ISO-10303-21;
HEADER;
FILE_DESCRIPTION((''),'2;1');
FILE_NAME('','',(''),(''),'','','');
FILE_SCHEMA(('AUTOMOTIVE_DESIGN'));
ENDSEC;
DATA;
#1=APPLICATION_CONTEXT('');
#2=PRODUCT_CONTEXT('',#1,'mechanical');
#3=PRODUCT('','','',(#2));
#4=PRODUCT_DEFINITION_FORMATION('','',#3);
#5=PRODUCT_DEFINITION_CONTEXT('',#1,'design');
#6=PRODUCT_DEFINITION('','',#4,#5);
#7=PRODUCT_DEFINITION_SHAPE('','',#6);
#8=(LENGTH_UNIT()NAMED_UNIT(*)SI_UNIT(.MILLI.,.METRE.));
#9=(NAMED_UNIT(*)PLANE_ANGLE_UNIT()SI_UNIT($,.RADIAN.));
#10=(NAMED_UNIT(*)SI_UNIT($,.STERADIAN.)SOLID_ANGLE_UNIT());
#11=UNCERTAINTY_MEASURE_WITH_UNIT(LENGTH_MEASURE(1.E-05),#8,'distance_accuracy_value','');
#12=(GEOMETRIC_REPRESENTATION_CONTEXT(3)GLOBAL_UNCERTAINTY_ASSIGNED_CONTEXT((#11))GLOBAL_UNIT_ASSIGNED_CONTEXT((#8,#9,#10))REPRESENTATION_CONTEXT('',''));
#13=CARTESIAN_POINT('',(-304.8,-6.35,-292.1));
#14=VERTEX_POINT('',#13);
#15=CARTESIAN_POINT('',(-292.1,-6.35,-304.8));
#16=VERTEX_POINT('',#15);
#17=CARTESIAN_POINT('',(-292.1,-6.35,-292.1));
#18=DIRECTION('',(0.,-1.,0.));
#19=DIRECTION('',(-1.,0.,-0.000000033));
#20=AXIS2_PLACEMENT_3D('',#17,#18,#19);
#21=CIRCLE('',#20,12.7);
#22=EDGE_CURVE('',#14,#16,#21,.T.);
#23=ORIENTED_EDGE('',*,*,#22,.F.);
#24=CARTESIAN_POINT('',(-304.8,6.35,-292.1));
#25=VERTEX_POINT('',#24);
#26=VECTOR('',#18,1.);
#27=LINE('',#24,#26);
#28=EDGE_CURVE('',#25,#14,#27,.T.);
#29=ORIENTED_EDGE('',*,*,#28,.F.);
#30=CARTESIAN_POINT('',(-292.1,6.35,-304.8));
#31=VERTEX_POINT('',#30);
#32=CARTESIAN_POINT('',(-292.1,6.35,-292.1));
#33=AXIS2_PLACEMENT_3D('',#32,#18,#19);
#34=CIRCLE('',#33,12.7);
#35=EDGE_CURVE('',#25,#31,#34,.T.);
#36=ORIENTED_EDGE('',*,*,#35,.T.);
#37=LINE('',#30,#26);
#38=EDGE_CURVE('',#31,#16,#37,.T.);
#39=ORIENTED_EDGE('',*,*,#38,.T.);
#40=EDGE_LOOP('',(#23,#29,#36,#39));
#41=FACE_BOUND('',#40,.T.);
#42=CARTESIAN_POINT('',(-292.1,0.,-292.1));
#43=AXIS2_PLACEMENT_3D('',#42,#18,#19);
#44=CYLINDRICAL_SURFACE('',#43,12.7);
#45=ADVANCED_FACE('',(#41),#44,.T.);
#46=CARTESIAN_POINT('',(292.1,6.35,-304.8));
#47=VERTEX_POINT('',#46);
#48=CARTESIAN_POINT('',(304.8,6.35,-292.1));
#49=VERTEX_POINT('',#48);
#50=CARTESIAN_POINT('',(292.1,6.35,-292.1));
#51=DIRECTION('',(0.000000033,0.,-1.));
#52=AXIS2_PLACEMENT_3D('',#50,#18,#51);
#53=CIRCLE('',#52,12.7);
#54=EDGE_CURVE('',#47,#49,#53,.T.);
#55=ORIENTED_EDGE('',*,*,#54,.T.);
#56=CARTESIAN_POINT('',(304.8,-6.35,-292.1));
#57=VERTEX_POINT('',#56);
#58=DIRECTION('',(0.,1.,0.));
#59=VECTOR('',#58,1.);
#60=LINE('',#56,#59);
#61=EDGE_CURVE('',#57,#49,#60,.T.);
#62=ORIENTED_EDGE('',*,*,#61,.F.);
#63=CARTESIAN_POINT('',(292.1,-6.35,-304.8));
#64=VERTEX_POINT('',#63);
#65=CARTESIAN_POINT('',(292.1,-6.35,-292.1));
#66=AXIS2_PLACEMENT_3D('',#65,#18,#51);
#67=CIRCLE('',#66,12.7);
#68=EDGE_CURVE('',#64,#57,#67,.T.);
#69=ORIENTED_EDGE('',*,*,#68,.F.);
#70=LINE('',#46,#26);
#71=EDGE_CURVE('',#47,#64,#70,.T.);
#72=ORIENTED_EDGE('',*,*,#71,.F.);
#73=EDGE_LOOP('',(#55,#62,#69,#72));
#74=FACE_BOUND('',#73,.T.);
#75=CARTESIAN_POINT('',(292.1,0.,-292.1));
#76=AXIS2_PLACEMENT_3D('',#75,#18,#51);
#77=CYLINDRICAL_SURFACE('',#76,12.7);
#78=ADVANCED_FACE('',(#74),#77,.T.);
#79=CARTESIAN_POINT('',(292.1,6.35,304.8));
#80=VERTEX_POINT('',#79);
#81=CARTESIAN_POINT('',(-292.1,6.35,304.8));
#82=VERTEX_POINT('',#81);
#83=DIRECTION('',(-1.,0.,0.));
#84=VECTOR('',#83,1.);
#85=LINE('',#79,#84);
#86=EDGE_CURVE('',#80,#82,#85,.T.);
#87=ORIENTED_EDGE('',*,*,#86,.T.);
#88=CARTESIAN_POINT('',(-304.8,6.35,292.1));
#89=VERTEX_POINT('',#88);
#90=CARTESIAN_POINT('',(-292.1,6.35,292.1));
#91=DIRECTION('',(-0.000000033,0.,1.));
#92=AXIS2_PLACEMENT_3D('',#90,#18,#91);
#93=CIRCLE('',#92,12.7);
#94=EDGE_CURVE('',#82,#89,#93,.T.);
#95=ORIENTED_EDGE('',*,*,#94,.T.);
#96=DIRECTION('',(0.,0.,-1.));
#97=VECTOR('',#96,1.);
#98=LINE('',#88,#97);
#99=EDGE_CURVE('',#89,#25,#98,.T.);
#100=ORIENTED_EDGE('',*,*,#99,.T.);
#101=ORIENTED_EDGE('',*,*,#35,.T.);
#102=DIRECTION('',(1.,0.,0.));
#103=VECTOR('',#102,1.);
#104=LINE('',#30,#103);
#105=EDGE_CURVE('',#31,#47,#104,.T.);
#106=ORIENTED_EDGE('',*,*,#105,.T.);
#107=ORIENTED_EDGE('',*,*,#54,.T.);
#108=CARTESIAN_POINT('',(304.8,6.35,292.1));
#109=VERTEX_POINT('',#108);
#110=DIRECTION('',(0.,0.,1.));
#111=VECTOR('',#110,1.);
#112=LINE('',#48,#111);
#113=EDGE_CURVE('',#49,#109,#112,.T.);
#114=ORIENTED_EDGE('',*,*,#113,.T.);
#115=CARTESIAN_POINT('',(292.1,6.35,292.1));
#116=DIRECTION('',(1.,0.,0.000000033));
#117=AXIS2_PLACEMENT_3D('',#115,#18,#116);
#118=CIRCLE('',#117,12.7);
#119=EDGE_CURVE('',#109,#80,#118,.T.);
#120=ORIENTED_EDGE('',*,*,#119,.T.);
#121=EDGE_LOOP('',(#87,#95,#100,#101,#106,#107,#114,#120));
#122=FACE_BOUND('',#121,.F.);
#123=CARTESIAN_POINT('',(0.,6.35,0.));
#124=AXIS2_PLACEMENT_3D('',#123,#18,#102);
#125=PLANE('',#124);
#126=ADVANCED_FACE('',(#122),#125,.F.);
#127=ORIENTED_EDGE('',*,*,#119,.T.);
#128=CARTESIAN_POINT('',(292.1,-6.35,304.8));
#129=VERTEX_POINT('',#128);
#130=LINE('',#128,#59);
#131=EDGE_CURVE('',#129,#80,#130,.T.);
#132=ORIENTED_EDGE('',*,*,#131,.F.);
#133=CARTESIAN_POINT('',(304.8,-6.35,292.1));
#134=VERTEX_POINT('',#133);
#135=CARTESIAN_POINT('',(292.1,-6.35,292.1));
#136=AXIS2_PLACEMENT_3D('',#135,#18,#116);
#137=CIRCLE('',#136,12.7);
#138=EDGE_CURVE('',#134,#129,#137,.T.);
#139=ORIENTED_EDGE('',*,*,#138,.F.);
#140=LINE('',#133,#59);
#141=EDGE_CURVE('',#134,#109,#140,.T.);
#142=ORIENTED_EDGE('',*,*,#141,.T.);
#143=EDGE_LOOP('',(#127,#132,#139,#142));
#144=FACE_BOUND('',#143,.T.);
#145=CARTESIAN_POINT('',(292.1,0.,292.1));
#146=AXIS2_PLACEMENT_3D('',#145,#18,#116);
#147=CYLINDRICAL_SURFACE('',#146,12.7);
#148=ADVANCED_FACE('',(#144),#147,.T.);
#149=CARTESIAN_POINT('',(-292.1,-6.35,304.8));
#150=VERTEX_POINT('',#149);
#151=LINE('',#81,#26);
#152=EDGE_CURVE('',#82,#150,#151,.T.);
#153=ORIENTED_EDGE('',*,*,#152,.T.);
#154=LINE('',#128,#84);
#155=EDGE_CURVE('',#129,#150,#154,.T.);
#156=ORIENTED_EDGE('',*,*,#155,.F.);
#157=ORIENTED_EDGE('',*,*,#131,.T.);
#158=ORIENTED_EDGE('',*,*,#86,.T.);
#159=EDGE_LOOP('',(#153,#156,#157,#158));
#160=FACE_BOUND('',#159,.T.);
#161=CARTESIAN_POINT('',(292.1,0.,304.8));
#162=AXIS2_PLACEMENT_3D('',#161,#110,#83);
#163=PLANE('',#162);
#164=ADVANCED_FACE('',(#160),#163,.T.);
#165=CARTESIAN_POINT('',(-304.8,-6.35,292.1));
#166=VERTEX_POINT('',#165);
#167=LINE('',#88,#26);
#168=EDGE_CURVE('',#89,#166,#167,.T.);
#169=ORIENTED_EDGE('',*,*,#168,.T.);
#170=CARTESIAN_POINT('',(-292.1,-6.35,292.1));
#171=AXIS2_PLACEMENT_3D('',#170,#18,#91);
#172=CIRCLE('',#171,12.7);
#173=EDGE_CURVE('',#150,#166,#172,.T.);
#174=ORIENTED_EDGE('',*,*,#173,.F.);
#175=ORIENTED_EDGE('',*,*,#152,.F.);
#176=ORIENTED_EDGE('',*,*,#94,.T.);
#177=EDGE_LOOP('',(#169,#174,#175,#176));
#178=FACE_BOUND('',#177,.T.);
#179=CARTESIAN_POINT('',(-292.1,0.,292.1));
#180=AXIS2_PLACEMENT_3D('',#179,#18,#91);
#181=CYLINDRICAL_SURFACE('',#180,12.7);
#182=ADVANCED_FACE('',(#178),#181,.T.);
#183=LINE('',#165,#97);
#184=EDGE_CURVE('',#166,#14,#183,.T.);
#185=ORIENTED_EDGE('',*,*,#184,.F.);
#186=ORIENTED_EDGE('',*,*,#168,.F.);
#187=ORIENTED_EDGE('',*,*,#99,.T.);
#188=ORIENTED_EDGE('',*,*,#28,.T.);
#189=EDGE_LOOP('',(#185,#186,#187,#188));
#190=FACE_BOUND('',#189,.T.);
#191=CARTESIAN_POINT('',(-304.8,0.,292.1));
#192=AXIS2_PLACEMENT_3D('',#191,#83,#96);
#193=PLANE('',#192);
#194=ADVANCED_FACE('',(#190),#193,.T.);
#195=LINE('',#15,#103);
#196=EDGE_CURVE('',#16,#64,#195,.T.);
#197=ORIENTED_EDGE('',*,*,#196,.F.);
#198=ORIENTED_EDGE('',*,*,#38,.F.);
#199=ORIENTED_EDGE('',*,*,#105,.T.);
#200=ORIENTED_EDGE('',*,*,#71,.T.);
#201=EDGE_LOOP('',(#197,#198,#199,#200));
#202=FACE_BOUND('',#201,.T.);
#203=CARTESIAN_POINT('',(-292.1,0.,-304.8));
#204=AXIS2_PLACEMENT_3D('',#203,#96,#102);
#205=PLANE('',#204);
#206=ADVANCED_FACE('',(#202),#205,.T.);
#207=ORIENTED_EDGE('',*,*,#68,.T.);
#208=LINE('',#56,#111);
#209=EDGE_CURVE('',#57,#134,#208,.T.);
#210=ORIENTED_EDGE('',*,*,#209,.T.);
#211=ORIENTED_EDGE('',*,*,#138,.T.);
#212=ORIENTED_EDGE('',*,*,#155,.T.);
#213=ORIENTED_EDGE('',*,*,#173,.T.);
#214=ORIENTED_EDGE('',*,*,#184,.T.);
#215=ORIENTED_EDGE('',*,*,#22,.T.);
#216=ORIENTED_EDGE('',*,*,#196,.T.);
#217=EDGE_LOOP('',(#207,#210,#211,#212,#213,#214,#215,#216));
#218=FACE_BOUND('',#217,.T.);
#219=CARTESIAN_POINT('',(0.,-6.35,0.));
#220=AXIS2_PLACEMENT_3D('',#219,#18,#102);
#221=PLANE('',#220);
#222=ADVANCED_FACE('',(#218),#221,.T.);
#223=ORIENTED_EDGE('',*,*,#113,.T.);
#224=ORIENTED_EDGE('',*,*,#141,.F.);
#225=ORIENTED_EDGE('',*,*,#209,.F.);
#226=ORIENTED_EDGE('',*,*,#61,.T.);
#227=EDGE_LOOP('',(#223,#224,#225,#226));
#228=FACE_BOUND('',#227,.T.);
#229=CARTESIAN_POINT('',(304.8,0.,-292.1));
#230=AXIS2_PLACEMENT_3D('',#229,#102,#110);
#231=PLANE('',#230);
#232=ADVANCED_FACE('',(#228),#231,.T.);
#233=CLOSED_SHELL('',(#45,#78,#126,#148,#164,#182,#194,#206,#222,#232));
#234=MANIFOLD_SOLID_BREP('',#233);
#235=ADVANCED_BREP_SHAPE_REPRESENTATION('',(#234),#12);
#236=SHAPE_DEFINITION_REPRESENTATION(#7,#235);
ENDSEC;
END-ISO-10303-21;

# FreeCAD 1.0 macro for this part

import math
import FreeCAD as App
import Part
import Sketcher

V = App.Vector
Q = App.Units.Quantity

doc = App.newDocument("Part")
body = doc.addObject("PartDesign::Body", "Body")

# Sketch on XZ plane
sketch1 = body.newObject("Sketcher::SketchObject", "Sketch")
sketch1.AttachmentSupport = (doc.getObject("XZ_Plane"), [""])
sketch1.MapMode = "FlatFace"
sketch1.addGeometry([
    Part.LineSegment(V(292, 305, 0), V(-292, 305, 0)),  # 0
    Part.ArcOfCircle(Part.Circle(V(-292, 292, 0), V(0, 0, 1), 13), math.radians(90), math.radians(180)),  # 1
    Part.LineSegment(V(-305, 292, 0), V(-305, -292, 0)),  # 2
    Part.ArcOfCircle(Part.Circle(V(-292, -292, 0), V(0, 0, 1), 13), math.radians(-180), math.radians(-90)),  # 3
    Part.LineSegment(V(-292, -305, 0), V(292, -305, 0)),  # 4
    Part.ArcOfCircle(Part.Circle(V(292, -292, 0), V(0, 0, 1), 13), math.radians(-90), math.radians(0)),  # 5
    Part.LineSegment(V(305, -292, 0), V(305, 292, 0)),  # 6
    Part.ArcOfCircle(Part.Circle(V(292, 292, 0), V(0, 0, 1), 13), math.radians(0), math.radians(90)),  # 7
], False)
sketch1.addConstraint([
    Sketcher.Constraint("Tangent", 0, 2, 1, 1),
    Sketcher.Constraint("Tangent", 1, 2, 2, 1),
    Sketcher.Constraint("Tangent", 2, 2, 3, 1),
    Sketcher.Constraint("Tangent", 3, 2, 4, 1),
    Sketcher.Constraint("Tangent", 4, 2, 5, 1),
    Sketcher.Constraint("Tangent", 5, 2, 6, 1),
    Sketcher.Constraint("Tangent", 6, 2, 7, 1),
    Sketcher.Constraint("Tangent", 7, 2, 0, 1),
    Sketcher.Constraint("Horizontal", 0),
    Sketcher.Constraint("Vertical", 2),
    Sketcher.Constraint("Horizontal", 4),
    Sketcher.Constraint("Vertical", 6),
    Sketcher.Constraint("Equal", 1, 3),
    Sketcher.Constraint("Equal", 3, 5),
    Sketcher.Constraint("Equal", 5, 7),
    Sketcher.Constraint("Symmetric", 1, 3, 5, 3, -1, 1),
    Sketcher.Constraint("Equal", 4, 2),
    Sketcher.Constraint("Radius", 1, Q("0.5 in")),
    Sketcher.Constraint("DistanceX", 0, 2, 0, 1, Q("23 in")),
])
pad1 = body.newObject("PartDesign::Pad", "Pad")
pad1.Profile = sketch1
pad1.Length = Q("0.5 in")
pad1.Midplane = True

doc.recompute()
